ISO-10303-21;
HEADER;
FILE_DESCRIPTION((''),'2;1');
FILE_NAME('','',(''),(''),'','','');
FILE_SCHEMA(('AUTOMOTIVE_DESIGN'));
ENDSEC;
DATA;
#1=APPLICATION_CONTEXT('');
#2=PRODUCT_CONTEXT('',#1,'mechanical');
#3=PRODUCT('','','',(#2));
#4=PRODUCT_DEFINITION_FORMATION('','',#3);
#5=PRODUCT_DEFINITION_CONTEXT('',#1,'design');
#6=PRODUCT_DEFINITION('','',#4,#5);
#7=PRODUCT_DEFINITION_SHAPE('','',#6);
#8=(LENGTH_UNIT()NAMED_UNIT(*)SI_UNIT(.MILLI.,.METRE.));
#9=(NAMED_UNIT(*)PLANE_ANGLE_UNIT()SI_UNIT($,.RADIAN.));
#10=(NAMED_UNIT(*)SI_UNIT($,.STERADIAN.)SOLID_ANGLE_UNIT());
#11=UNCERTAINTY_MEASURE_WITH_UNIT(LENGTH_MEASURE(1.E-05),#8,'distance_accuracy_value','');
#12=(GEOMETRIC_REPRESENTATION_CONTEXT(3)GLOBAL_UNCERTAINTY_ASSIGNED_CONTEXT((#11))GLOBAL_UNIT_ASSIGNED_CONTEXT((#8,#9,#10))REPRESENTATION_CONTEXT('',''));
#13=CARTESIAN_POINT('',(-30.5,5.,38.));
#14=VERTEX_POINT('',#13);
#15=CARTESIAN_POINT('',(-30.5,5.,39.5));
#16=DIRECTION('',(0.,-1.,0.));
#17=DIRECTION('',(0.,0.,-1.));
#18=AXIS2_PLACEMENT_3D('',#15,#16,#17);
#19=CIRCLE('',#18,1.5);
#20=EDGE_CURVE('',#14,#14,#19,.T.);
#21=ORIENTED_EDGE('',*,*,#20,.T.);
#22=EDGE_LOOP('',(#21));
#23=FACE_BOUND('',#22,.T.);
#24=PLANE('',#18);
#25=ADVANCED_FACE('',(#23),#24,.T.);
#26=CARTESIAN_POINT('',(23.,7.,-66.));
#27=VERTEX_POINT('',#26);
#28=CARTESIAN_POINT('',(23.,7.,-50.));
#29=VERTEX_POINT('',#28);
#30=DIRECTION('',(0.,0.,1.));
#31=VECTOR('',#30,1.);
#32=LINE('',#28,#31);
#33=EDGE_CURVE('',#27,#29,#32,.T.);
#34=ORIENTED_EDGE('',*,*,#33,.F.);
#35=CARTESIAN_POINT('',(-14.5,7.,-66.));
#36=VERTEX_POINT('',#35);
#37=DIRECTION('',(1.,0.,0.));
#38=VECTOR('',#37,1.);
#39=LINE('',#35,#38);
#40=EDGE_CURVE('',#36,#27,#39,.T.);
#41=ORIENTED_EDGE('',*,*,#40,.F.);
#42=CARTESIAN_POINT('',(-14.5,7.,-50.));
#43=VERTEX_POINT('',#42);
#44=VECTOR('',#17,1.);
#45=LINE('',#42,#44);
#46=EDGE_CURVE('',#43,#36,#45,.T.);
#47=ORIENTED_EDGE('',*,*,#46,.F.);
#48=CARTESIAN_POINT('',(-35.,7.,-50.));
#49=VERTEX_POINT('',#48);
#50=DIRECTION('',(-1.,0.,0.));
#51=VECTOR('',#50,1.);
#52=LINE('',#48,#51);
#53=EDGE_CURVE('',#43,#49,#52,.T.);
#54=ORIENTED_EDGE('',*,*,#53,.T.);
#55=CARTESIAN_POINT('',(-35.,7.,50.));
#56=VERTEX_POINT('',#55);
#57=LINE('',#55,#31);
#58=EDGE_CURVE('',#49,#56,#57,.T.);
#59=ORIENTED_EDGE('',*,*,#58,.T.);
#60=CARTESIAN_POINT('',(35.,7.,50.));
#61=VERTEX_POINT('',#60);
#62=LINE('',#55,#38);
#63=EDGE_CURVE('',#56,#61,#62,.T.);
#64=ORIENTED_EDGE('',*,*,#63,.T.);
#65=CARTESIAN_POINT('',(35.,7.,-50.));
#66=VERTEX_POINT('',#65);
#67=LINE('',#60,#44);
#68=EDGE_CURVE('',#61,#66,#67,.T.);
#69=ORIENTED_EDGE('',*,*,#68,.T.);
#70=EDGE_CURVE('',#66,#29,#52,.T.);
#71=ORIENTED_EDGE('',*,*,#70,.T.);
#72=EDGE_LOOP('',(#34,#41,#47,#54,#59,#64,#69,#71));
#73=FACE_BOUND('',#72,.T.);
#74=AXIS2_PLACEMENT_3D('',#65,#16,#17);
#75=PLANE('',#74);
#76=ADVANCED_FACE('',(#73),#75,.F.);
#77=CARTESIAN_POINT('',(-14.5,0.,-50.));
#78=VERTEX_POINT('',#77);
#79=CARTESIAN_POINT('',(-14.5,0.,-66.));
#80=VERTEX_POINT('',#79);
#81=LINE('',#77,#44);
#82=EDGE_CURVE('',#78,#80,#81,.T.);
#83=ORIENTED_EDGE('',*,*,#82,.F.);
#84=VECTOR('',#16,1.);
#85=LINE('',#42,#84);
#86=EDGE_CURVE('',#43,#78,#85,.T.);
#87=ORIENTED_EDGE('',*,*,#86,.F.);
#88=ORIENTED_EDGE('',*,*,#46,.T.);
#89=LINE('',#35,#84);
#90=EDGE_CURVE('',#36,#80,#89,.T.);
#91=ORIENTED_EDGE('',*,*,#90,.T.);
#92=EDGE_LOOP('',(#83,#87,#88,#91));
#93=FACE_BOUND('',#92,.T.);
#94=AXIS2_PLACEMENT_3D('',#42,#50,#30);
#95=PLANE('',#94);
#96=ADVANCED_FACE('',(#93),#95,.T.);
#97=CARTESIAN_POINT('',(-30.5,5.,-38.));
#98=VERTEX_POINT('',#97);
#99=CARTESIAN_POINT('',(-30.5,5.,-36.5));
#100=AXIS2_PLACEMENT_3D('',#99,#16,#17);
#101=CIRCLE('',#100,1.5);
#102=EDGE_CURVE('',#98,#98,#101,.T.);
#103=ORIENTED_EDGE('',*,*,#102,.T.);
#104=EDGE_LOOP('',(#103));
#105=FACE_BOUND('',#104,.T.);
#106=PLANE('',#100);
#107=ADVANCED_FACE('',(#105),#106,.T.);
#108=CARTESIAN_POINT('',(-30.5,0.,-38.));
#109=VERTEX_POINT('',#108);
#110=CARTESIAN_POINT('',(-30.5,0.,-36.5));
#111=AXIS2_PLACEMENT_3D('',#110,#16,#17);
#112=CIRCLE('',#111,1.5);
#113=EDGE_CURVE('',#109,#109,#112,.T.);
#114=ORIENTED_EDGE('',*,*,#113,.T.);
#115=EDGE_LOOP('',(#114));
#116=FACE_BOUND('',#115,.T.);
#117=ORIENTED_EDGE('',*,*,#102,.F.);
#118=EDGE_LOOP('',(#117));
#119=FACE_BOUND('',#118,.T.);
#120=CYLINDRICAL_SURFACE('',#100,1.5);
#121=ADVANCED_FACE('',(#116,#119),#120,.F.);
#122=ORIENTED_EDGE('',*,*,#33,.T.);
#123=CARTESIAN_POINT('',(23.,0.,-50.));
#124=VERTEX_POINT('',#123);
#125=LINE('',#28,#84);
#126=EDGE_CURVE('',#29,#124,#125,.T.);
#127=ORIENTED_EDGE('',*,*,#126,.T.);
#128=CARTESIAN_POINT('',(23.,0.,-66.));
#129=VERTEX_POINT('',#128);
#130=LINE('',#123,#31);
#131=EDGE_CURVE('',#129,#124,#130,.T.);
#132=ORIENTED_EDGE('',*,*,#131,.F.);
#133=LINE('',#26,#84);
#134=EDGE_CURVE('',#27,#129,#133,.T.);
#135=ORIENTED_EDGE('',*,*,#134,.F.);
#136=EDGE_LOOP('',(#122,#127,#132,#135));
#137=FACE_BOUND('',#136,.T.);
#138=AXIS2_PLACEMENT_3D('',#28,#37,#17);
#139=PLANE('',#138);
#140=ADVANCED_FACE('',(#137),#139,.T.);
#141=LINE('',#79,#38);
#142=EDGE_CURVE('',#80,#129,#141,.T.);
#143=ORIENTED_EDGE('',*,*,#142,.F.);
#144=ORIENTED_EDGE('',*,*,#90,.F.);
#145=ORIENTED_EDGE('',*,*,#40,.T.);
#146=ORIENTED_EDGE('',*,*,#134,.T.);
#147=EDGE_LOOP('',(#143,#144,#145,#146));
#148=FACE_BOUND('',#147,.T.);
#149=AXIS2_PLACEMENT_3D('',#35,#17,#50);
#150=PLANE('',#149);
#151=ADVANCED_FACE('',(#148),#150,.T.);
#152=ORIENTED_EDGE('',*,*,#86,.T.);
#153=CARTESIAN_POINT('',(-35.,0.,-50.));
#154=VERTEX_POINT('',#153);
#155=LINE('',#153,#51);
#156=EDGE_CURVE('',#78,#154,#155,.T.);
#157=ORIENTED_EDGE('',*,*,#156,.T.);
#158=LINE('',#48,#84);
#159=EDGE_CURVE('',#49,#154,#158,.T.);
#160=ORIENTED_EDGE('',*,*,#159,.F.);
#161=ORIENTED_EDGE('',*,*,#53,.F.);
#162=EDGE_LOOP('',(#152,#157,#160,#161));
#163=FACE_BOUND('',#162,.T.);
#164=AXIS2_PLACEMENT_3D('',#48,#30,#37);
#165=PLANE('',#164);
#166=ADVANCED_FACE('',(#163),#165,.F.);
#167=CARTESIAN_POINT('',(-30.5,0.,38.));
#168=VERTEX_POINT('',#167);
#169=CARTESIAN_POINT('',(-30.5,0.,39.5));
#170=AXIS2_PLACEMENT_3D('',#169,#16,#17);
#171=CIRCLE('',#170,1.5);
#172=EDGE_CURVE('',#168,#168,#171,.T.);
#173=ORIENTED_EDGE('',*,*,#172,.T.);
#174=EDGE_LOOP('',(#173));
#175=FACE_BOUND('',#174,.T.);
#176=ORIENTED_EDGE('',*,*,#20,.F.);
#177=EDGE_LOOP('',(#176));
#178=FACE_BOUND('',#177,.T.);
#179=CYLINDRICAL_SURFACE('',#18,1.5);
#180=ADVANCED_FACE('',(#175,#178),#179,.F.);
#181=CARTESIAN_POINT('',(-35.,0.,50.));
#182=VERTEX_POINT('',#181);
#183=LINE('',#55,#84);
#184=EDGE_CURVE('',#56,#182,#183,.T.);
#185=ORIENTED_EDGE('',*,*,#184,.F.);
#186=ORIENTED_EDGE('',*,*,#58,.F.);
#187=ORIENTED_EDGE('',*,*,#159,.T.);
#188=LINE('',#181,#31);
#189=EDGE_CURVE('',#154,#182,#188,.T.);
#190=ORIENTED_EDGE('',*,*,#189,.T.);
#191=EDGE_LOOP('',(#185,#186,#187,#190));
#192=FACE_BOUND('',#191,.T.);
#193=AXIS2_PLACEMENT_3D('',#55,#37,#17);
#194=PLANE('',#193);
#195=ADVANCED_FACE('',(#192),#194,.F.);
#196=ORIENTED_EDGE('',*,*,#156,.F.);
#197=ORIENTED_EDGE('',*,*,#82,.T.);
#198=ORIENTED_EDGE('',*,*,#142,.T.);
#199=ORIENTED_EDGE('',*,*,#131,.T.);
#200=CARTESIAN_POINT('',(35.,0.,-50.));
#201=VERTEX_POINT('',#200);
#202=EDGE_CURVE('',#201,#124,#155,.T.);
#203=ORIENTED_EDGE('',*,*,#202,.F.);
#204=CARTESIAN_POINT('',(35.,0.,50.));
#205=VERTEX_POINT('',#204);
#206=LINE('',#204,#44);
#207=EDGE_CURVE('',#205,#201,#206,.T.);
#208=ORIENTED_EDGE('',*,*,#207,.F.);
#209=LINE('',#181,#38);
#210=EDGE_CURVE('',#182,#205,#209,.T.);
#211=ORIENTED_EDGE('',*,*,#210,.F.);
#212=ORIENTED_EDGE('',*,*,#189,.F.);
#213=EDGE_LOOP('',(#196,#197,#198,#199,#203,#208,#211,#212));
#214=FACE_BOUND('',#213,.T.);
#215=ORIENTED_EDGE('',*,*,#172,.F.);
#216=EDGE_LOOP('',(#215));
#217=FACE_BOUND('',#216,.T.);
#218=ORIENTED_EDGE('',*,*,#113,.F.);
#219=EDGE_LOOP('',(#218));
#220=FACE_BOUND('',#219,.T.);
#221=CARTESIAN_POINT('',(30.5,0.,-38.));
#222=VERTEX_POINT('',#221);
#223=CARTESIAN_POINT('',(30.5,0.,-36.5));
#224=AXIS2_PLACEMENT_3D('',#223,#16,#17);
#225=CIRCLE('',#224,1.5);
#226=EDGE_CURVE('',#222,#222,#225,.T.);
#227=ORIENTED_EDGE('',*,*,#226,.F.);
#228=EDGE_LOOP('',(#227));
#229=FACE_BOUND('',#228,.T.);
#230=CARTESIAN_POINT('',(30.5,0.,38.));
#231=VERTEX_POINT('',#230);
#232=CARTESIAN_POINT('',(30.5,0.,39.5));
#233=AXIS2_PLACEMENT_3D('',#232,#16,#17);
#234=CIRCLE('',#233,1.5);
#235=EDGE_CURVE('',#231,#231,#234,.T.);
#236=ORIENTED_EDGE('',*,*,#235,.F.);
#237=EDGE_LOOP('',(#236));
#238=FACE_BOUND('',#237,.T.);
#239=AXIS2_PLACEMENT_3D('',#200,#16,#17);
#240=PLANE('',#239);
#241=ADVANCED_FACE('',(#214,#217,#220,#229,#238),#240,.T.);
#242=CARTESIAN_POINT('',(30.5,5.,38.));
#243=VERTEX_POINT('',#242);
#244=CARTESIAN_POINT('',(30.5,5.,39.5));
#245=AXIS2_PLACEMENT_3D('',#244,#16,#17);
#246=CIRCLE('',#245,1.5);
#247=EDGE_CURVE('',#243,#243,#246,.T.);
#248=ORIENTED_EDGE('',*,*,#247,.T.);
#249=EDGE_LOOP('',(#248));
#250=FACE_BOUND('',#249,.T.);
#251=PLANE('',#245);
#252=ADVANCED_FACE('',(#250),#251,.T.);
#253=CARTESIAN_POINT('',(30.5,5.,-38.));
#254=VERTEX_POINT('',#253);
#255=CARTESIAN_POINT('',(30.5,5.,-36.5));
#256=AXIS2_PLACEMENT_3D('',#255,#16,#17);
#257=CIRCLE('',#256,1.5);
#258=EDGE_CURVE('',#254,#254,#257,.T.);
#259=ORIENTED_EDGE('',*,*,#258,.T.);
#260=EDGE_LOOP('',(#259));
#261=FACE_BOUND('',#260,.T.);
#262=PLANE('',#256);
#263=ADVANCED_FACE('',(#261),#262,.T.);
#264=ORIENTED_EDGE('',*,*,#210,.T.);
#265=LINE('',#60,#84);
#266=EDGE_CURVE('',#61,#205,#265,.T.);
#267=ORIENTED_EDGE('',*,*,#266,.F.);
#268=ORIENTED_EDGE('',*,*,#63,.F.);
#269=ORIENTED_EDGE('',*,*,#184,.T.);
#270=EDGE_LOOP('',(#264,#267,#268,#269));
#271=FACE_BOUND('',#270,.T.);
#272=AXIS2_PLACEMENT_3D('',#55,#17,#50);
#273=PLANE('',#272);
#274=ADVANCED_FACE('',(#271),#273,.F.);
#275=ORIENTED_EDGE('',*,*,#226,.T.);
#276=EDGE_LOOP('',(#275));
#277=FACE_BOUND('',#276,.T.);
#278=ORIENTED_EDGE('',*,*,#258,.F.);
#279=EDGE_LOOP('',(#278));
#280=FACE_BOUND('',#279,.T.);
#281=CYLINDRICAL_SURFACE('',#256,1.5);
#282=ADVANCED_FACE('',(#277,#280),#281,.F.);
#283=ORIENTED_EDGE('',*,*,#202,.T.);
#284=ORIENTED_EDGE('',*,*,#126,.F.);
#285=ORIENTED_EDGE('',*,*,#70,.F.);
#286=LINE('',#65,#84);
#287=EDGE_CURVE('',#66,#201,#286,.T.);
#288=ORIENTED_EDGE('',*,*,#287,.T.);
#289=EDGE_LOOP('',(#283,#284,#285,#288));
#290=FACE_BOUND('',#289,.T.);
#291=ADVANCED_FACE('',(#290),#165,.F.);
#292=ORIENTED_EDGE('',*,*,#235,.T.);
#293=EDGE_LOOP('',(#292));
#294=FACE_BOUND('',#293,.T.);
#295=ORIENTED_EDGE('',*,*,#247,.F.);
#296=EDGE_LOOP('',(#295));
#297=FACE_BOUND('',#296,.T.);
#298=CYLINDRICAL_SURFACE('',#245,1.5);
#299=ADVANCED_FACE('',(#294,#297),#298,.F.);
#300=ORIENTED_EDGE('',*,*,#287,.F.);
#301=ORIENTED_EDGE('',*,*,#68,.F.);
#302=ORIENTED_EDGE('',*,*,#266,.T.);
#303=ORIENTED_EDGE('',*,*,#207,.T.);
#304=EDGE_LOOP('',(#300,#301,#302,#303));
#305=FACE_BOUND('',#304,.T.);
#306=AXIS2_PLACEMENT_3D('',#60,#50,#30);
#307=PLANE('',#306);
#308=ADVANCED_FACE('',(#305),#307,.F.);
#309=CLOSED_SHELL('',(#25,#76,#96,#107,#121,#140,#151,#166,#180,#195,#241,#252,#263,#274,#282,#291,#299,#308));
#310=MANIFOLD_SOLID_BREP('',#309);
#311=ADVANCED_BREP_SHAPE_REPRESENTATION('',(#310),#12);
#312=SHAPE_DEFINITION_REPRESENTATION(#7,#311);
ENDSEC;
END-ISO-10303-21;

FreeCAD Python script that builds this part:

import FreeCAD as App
import Part
import Sketcher
from FreeCAD import Vector
Q = App.Units.Quantity


def add_polygon(sketch, points):
    """Adds a closed chain of lines whose ends are joined by coincident constraints."""
    first, n = sketch.GeometryCount, len(points)
    for a, b in zip(points, points[1:] + points[:1]):
        sketch.addGeometry(Part.LineSegment(App.Vector(*a, 0), App.Vector(*b, 0)), False)
    for i in range(n):
        sketch.addConstraint(Sketcher.Constraint("Coincident", first + i, 2, first + (i + 1) % n, 1))

doc = App.newDocument("Part")
body = doc.addObject("PartDesign::Body", "Body")

# Sketch on XZ plane
sketch1 = body.newObject("Sketcher::SketchObject", "Sketch")
sketch1.AttachmentSupport = (doc.getObject("XZ_Plane"), [""])
sketch1.MapMode = "FlatFace"
add_polygon(sketch1, [(-35, -50), (-35, 50), (35, 50), (35, -50)])  # lines 0-3
sketch1.addConstraint(Sketcher.Constraint("Vertical", 0))
sketch1.addConstraint(Sketcher.Constraint("Horizontal", 1))
sketch1.addConstraint(Sketcher.Constraint("Vertical", 2))
sketch1.addConstraint(Sketcher.Constraint("Horizontal", 3))
sketch1.addConstraint(Sketcher.Constraint("Symmetric", 0, 2, 2, 2, -1, 1))
sketch1.addConstraint(Sketcher.Constraint("DistanceX", 1, 1, 1, 2, Q("70 mm")))
sketch1.addConstraint(Sketcher.Constraint("DistanceY", 0, 1, 0, 2, Q("100 mm")))
pad1 = body.newObject("PartDesign::Pad", "Pad")
pad1.Profile = sketch1
pad1.Length = 7
pad1.Reversed = True

# Sketch on XZ plane
sketch2 = body.newObject("Sketcher::SketchObject", "Sketch001")
sketch2.AttachmentSupport = (doc.getObject("XZ_Plane"), [""])
sketch2.MapMode = "FlatFace"
sketch2.addGeometry(Part.Circle(Vector(-30.5, -36.5, 0), Vector(0, 0, 1), 1.5), False)
sketch2.addGeometry(Part.Circle(Vector(-30.5, 39.5, 0), Vector(0, 0, 1), 1.5), False)
sketch2.addGeometry(Part.Circle(Vector(30.5, 39.5, 0), Vector(0, 0, 1), 1.5), False)
sketch2.addGeometry(Part.Circle(Vector(30.5, -36.5, 0), Vector(0, 0, 1), 1.5), False)
sketch2.addConstraint(Sketcher.Constraint("Equal", 0, 1))
sketch2.addConstraint(Sketcher.Constraint("Equal", 1, 2))
sketch2.addConstraint(Sketcher.Constraint("Equal", 2, 3))
sketch2.addConstraint(Sketcher.Constraint("Symmetric", 1, 3, 2, 3, -2))
sketch2.addConstraint(Sketcher.Constraint("Symmetric", 0, 3, 3, 3, -2))
sketch2.addConstraint(Sketcher.Constraint("Vertical", 0, 3, 1, 3))
sketch2.addConstraint(Sketcher.Constraint("Diameter", 0, Q("3 mm")))
sketch2.addConstraint(Sketcher.Constraint("DistanceY", 0, 3, 1, 3, Q("76 mm")))
sketch2.addConstraint(Sketcher.Constraint("DistanceX", 1, 3, 2, 3, Q("61 mm")))
sketch2.addConstraint(Sketcher.Constraint("DistanceY", 0, 3, -1, 1, Q("36.5 mm")))
pocket1 = body.newObject("PartDesign::Pocket", "Pocket")
pocket1.Profile = sketch2
pocket1.Length = 5

# Sketch on XZ plane
sketch3 = body.newObject("Sketcher::SketchObject", "Sketch002")
sketch3.AttachmentSupport = (doc.getObject("XZ_Plane"), [""])
sketch3.MapMode = "FlatFace"
add_polygon(sketch3, [(-14.5, -50), (-14.5, -66), (23, -66), (23, -50)])  # lines 0-3
sketch3.addConstraint(Sketcher.Constraint("Vertical", 0))
sketch3.addConstraint(Sketcher.Constraint("Horizontal", 1))
sketch3.addConstraint(Sketcher.Constraint("Vertical", 2))
sketch3.addConstraint(Sketcher.Constraint("Horizontal", 3))
sketch3.addConstraint(Sketcher.Constraint("DistanceY", 0, 2, 0, 1, Q("16 mm")))
sketch3.addConstraint(Sketcher.Constraint("DistanceX", 1, 1, 1, 2, Q("37.5 mm")))
sketch3.addConstraint(Sketcher.Constraint("DistanceY", 0, 2, -1, 1, Q("66 mm")))
sketch3.addConstraint(Sketcher.Constraint("DistanceX", -1, 1, 1, 2, Q("23 mm")))
pad2 = body.newObject("PartDesign::Pad", "Pad001")
pad2.Profile = sketch3
pad2.Length = 7
pad2.Reversed = True

doc.recompute()
